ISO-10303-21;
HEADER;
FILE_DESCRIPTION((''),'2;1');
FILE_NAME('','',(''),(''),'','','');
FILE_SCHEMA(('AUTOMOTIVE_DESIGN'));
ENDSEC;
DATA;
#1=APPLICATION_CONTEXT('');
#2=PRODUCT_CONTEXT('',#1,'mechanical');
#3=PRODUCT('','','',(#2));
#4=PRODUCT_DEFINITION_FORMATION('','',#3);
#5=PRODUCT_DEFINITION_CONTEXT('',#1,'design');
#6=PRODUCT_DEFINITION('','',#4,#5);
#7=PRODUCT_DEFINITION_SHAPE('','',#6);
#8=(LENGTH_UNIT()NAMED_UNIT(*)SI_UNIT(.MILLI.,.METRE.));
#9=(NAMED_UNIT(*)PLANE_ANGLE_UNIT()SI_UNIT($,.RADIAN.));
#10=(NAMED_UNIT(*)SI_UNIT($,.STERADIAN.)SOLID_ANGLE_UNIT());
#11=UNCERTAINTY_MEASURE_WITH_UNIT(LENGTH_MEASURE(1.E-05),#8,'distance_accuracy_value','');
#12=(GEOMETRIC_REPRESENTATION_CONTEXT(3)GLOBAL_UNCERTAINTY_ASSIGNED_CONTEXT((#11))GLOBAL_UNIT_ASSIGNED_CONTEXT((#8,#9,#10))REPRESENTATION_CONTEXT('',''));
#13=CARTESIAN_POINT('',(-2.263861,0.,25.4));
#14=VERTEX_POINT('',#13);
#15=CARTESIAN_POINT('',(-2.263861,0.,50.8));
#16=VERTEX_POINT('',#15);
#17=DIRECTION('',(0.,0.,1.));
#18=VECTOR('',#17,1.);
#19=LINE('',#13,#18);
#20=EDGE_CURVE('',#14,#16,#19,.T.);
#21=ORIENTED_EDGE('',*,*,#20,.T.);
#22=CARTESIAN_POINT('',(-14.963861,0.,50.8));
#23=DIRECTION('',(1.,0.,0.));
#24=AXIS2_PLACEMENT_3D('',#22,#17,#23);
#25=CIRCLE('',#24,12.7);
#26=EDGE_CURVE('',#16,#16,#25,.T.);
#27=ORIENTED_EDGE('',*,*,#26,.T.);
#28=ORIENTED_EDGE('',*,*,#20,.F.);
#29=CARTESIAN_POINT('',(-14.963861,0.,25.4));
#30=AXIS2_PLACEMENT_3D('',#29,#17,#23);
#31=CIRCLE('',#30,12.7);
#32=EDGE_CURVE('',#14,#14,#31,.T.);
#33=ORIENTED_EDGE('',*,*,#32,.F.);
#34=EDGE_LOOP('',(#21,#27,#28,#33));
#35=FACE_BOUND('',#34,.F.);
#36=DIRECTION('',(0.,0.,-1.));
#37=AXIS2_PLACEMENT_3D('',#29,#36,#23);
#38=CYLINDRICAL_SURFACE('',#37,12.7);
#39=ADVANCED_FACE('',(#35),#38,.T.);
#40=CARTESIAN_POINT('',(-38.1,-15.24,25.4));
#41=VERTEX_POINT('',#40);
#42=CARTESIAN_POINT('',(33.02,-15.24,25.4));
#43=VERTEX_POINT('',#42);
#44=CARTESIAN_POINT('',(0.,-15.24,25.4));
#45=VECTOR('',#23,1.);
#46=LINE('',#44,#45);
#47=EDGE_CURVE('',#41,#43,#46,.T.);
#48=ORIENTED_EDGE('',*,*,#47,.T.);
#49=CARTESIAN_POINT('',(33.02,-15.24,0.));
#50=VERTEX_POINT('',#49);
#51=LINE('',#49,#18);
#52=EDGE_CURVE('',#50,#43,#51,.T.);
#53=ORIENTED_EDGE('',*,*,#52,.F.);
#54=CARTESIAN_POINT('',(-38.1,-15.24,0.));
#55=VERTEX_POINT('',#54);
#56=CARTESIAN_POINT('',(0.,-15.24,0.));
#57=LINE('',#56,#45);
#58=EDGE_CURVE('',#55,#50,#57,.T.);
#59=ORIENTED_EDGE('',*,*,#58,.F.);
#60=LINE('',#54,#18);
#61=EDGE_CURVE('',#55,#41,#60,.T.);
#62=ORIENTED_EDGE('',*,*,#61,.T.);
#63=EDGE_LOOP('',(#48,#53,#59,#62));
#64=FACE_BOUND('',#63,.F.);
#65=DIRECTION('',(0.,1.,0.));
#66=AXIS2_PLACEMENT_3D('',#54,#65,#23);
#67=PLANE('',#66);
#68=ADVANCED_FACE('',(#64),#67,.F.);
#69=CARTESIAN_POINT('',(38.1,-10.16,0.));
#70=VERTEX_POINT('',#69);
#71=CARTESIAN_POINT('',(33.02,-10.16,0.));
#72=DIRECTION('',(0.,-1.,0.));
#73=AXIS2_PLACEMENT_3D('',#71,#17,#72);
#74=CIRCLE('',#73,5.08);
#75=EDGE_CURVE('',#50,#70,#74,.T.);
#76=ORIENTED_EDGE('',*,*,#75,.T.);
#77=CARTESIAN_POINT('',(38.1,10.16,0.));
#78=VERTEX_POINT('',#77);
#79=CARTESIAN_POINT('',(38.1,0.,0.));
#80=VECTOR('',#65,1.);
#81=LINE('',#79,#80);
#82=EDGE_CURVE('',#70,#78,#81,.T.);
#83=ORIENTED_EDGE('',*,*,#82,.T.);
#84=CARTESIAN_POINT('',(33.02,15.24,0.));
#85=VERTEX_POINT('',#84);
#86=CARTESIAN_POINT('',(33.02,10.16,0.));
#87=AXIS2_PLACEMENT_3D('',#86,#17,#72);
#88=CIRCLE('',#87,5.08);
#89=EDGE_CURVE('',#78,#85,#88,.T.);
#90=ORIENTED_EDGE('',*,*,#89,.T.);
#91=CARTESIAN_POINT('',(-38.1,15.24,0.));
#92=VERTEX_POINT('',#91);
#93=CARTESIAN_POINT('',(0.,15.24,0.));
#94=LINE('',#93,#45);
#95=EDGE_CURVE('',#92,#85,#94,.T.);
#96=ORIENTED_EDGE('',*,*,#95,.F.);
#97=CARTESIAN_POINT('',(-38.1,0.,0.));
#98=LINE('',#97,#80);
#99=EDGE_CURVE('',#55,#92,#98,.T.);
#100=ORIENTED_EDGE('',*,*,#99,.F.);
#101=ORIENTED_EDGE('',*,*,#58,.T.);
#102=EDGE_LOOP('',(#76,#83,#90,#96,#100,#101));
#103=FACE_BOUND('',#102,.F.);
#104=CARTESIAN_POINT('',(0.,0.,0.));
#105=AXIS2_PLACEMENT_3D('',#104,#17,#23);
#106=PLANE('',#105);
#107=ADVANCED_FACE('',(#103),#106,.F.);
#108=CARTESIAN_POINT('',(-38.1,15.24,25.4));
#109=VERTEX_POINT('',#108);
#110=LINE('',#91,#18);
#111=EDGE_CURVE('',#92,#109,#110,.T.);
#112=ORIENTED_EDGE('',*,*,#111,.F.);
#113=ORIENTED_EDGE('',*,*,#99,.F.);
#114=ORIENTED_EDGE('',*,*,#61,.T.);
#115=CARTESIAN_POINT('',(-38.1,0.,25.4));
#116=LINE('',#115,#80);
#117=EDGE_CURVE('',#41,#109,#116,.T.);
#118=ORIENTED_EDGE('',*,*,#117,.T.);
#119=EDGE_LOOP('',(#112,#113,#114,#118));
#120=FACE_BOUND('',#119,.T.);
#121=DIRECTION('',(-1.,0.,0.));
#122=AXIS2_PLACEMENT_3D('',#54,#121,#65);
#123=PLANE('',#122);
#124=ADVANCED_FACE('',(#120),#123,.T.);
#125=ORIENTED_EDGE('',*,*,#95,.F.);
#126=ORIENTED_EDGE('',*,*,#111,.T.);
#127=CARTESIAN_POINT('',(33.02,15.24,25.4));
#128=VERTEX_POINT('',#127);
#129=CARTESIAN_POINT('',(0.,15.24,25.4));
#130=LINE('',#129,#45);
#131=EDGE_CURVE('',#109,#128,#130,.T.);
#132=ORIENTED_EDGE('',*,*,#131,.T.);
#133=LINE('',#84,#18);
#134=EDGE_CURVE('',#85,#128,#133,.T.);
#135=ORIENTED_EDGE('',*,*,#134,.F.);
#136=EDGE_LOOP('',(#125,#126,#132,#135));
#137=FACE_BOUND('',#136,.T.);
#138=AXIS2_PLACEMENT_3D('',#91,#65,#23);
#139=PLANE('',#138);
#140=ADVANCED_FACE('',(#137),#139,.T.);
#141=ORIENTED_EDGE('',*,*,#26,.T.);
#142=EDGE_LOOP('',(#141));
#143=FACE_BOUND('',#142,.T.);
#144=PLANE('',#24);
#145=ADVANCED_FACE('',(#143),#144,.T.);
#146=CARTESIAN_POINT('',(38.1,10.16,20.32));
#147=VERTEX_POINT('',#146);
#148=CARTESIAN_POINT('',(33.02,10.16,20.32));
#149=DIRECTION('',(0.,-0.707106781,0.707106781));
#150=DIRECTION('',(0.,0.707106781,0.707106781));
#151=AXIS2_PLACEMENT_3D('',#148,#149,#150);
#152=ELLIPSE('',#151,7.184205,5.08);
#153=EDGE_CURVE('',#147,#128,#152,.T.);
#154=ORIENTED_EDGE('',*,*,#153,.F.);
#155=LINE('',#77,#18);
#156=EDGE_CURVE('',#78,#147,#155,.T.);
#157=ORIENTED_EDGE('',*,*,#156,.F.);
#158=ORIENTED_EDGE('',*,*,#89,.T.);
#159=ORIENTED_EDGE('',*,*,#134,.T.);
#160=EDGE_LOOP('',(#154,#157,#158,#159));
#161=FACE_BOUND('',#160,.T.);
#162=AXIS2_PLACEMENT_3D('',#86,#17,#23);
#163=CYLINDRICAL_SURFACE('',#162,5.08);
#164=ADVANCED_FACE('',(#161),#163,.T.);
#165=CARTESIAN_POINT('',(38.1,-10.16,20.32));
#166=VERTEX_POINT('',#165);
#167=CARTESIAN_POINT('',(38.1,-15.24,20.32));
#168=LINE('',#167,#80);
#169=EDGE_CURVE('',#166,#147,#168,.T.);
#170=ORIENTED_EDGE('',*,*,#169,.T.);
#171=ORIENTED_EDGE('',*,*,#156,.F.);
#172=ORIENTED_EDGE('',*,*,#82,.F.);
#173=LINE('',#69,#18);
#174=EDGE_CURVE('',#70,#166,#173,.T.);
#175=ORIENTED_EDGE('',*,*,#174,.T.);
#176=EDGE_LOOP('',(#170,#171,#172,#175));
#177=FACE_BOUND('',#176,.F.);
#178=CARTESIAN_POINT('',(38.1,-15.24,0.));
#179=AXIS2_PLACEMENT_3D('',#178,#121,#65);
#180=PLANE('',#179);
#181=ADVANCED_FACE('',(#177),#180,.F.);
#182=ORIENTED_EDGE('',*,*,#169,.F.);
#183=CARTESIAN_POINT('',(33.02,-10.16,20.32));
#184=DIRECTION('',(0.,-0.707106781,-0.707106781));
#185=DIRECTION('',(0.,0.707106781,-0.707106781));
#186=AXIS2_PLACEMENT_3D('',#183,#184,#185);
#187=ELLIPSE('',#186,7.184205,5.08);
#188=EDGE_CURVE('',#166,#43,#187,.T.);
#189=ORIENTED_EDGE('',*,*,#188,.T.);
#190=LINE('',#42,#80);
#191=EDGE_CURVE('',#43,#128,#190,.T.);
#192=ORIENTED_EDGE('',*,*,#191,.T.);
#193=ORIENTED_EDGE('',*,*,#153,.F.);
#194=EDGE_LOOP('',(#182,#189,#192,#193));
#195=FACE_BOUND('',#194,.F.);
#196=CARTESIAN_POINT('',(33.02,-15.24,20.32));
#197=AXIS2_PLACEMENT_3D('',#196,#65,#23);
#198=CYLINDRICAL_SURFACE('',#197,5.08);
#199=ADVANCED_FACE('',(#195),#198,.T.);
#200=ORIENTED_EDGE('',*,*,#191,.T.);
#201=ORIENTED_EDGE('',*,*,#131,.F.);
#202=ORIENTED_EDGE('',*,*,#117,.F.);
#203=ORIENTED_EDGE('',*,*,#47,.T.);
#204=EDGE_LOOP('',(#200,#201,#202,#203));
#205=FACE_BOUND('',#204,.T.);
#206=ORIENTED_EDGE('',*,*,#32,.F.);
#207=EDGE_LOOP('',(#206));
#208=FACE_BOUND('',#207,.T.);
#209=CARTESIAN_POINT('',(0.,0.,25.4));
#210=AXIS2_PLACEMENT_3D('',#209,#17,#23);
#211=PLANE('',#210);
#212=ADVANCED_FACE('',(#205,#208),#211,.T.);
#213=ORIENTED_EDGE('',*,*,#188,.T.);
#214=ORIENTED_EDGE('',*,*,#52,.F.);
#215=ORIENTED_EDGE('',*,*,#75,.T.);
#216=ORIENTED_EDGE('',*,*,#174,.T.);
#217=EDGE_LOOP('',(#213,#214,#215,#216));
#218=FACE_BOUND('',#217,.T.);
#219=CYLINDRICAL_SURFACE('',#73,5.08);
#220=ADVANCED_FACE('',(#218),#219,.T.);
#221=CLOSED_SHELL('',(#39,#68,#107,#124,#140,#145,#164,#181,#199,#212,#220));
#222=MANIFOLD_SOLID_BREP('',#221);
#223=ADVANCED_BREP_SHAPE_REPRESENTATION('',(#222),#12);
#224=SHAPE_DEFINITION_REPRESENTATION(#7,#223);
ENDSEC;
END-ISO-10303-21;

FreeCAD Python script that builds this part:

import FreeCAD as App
import Part
import Sketcher

V = App.Vector
Q = App.Units.Quantity


def edges_at(feature, points):
    """Names of the edges that pass closest to the given points."""
    edges = feature.Shape.Edges
    near = lambda p: min(range(len(edges)), key=lambda i: edges[i].distToShape(Part.Vertex(*p))[0])
    return sorted({f"Edge{near(p) + 1}" for p in points})

doc = App.newDocument("Part")
body = doc.addObject("PartDesign::Body", "Body")

sketch1 = doc.addObject("Sketcher::SketchObject", "Sketch")
body.addObject(sketch1)
sketch1.AttachmentSupport = (doc.XY_Plane, [""])
sketch1.MapMode = "FlatFace"
sketch1.addGeometry([
    Part.LineSegment(V(-38.1, 15.24, 0), V(-38.1, -15.24, 0)),
    Part.LineSegment(V(-38.1, -15.24, 0), V(38.1, -15.24, 0)),
    Part.LineSegment(V(38.1, -15.24, 0), V(38.1, 15.24, 0)),
    Part.LineSegment(V(38.1, 15.24, 0), V(-38.1, 15.24, 0)),
], False)
sketch1.addConstraint([
    Sketcher.Constraint("Coincident", 0, 2, 1, 1),
    Sketcher.Constraint("Coincident", 1, 2, 2, 1),
    Sketcher.Constraint("Coincident", 2, 2, 3, 1),
    Sketcher.Constraint("Coincident", 3, 2, 0, 1),
    Sketcher.Constraint("Vertical", 0),
    Sketcher.Constraint("Horizontal", 1),
    Sketcher.Constraint("Vertical", 2),
    Sketcher.Constraint("Horizontal", 3),
    Sketcher.Constraint("Symmetric", 0, 2, 2, 2, -1, 1),
    Sketcher.Constraint("DistanceX", 1, 1, 1, 2, Q("3 in")),
    Sketcher.Constraint("DistanceY", 0, 2, 0, 1, Q("1.2 in")),
])
pad1 = doc.addObject("PartDesign::Pad", "Pad")
body.addObject(pad1)
pad1.Profile = sketch1
pad1.Length = Q("1 in")
doc.recompute()

fillet = doc.addObject("PartDesign::Fillet", "Fillet")
body.addObject(fillet)
fillet.Base = (pad1, edges_at(pad1, [(38.1, 0, 25.4), (38.1, -15.24, 12.7), (38.1, 15.24, 12.7)]))
fillet.Radius = Q("0.2 in")

sketch2 = doc.addObject("Sketcher::SketchObject", "Sketch001")
body.addObject(sketch2)
sketch2.AttachmentSupport = (doc.XY_Plane, [""])
sketch2.MapMode = "FlatFace"
sketch2.AttachmentOffset = App.Placement(V(0, 0, 1 * 25.4), App.Rotation())
sketch2.addGeometry(Part.Circle(V(-14.963861, 0, 0), V(0, 0, 1), 12.7), False)
sketch2.addConstraint([
    Sketcher.Constraint("PointOnObject", 0, 3, -1),
    Sketcher.Constraint("Diameter", 0, Q("1 in")),
    Sketcher.Constraint("DistanceX", 0, 3, -1, 1, Q("14.963861 mm")),
])
pad2 = doc.addObject("PartDesign::Pad", "Pad001")
body.addObject(pad2)
pad2.Profile = sketch2
pad2.Length = Q("1 in")

doc.recompute()
